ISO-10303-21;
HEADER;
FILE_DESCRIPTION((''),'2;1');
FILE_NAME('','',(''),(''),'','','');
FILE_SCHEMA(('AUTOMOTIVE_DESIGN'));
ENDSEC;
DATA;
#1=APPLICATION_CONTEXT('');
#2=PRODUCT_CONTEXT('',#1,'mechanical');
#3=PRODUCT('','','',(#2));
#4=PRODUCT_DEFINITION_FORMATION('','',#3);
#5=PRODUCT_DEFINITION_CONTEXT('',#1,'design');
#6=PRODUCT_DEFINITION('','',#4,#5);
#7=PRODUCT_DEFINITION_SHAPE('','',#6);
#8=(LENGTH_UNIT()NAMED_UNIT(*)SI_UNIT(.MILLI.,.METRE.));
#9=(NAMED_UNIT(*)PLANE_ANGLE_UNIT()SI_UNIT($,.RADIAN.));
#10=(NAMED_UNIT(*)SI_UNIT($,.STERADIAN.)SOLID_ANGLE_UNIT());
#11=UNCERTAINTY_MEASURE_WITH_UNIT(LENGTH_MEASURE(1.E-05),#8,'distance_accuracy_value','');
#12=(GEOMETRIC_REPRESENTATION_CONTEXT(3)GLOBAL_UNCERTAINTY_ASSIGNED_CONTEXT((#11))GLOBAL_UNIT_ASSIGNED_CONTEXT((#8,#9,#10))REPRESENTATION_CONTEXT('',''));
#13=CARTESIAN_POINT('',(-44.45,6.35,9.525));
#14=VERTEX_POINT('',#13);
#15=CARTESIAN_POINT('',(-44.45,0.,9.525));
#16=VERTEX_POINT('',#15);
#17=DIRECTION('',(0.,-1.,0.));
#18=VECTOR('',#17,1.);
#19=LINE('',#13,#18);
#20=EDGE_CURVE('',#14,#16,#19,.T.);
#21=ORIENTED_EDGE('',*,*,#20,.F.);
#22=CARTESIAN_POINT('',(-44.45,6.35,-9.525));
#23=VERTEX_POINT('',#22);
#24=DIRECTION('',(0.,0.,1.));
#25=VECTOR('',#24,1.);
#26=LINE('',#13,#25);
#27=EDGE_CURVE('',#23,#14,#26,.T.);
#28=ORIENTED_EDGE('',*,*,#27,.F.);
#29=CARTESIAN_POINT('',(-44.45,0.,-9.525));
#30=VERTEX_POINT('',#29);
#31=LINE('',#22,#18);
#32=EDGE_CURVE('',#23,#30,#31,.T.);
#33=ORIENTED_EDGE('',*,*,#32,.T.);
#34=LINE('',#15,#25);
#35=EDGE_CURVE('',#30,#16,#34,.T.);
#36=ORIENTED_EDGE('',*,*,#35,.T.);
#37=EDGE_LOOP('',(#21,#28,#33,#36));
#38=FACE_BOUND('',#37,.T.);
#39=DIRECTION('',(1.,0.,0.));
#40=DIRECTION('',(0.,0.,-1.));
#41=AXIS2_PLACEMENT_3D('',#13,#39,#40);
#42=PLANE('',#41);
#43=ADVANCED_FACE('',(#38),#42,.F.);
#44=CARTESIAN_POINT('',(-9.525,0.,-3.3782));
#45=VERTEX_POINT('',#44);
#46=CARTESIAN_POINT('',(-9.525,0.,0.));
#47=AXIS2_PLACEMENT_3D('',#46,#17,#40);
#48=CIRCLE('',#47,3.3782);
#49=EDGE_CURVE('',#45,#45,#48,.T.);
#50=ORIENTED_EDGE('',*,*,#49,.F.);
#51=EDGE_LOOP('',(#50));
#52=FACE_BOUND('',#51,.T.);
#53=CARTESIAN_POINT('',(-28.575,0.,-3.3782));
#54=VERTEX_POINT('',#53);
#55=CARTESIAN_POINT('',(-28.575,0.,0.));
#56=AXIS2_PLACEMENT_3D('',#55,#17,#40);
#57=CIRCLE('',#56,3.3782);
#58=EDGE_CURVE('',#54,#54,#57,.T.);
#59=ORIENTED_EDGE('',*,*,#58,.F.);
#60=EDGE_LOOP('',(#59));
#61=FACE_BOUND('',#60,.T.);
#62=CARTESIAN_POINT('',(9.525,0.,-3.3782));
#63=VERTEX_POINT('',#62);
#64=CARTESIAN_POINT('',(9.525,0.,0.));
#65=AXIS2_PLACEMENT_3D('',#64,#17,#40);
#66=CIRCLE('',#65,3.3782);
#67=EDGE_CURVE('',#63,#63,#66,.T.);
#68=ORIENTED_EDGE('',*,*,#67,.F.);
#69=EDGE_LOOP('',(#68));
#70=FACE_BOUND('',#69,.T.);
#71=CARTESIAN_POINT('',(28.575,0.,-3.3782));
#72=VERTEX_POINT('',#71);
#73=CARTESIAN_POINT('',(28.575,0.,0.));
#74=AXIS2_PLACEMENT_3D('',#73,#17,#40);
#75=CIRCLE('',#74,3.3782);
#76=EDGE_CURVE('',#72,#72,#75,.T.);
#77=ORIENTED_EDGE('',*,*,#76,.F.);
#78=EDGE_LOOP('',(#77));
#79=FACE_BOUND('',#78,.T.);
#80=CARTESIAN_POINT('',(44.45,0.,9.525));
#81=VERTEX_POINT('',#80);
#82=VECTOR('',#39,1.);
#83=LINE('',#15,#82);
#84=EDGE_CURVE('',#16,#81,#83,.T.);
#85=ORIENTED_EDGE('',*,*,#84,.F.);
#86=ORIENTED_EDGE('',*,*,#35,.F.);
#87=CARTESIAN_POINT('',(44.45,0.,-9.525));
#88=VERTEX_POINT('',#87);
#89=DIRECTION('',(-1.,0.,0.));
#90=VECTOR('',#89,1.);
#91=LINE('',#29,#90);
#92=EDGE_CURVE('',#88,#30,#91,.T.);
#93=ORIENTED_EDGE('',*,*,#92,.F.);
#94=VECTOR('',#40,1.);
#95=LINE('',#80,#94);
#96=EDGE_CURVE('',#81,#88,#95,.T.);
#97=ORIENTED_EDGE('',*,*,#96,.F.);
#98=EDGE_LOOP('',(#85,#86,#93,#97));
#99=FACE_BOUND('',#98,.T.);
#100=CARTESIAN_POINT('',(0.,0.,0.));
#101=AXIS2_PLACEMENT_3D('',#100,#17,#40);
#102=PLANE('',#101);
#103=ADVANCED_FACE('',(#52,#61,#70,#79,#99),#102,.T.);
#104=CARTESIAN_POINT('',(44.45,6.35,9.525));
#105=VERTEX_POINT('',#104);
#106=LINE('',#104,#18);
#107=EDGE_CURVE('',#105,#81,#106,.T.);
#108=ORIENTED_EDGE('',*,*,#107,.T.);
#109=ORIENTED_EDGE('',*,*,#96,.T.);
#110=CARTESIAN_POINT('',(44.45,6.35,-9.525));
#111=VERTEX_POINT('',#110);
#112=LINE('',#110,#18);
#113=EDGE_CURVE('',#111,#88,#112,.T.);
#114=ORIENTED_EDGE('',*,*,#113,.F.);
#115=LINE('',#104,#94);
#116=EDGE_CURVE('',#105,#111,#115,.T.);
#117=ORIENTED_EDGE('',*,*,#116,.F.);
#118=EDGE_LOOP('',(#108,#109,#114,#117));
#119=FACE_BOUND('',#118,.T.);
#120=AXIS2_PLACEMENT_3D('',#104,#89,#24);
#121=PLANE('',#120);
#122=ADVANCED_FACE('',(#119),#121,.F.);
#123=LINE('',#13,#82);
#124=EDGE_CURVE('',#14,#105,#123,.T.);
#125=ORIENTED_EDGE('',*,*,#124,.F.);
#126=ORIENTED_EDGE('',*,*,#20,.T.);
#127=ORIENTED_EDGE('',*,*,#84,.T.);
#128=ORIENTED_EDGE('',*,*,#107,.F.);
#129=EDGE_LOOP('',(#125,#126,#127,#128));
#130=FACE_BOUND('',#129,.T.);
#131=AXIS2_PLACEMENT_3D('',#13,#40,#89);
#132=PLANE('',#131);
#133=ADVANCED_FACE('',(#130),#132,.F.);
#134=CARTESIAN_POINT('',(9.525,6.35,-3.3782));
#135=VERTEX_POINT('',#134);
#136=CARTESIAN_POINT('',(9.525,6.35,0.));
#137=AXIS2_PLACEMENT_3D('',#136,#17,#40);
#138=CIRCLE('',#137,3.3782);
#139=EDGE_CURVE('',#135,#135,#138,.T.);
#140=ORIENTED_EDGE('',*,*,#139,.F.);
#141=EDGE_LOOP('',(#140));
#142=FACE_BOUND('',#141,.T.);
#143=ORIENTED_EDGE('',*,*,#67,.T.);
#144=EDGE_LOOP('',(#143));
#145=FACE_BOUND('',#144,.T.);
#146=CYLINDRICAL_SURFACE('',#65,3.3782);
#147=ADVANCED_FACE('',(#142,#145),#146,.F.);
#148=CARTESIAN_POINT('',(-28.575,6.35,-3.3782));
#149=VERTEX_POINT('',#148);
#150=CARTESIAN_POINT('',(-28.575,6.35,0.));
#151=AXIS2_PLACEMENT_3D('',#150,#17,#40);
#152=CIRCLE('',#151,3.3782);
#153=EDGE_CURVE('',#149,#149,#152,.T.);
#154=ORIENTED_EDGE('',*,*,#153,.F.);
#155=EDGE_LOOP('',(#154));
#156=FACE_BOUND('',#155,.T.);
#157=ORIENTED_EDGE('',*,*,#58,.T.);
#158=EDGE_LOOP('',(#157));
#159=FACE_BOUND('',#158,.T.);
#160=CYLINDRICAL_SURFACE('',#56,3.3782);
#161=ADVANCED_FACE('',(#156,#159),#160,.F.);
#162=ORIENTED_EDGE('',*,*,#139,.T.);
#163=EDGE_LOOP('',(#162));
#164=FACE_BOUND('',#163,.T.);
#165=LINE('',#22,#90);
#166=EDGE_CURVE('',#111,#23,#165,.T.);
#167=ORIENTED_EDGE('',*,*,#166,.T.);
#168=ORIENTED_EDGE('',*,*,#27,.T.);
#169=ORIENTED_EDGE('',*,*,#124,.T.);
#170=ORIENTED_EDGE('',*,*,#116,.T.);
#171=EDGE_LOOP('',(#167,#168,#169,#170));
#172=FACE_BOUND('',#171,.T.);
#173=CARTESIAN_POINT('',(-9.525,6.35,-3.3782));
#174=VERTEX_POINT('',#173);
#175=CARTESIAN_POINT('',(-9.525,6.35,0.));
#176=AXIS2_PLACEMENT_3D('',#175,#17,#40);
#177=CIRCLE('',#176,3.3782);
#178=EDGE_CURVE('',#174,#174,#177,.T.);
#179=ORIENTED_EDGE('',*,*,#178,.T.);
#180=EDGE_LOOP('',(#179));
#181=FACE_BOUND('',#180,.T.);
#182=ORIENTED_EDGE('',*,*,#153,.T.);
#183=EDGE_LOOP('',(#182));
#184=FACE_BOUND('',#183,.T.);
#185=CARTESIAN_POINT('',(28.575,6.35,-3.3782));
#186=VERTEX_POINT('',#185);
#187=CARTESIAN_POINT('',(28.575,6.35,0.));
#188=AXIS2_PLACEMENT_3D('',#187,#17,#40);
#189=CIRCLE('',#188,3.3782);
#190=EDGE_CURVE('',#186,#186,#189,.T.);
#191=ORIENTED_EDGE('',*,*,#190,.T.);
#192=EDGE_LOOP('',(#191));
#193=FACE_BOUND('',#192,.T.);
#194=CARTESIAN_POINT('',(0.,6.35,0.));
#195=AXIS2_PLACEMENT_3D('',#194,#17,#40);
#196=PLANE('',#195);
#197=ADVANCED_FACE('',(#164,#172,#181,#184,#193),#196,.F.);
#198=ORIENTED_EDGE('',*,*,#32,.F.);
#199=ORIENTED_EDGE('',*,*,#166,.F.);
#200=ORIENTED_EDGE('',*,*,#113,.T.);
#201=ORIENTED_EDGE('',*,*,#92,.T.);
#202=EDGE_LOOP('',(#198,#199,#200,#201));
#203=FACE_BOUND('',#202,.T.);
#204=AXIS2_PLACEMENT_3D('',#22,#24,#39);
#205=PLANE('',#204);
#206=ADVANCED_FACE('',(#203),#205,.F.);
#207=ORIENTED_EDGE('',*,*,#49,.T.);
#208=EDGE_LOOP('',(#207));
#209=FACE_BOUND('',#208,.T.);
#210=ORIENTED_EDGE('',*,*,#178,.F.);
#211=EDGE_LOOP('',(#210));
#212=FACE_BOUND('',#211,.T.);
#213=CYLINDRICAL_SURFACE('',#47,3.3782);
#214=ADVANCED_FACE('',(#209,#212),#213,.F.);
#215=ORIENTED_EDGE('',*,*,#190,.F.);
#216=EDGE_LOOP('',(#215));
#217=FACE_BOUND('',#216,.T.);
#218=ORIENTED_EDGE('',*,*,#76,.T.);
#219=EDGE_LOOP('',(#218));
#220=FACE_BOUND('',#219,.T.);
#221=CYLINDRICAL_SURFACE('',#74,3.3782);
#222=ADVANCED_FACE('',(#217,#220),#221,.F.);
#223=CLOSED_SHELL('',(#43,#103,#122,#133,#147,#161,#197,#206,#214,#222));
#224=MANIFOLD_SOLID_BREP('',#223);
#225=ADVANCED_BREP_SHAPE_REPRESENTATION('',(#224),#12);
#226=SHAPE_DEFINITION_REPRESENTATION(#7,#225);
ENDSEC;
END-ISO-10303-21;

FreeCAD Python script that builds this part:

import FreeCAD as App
import Part
import Sketcher
Q = App.Units.Quantity


def add_polygon(sketch, points):
    """Adds a closed chain of lines whose ends are joined by coincident constraints."""
    first, n = sketch.GeometryCount, len(points)
    for a, b in zip(points, points[1:] + points[:1]):
        sketch.addGeometry(Part.LineSegment(App.Vector(*a, 0), App.Vector(*b, 0)), False)
    for i in range(n):
        sketch.addConstraint(Sketcher.Constraint("Coincident", first + i, 2, first + (i + 1) % n, 1))

doc = App.newDocument("Part")
body = doc.addObject("PartDesign::Body", "Body")

sketch1 = body.newObject("Sketcher::SketchObject", "Sketch")
sketch1.AttachmentSupport = (doc.getObject("XZ_Plane"), [""])
sketch1.MapMode = "FlatFace"
add_polygon(sketch1, [(-44, -10), (-44, 10), (44, 10), (44, -10)])
sketch1.addConstraint([
    Sketcher.Constraint("Vertical", 0),
    Sketcher.Constraint("Horizontal", 1),
    Sketcher.Constraint("Vertical", 2),
    Sketcher.Constraint("Horizontal", 3),
    Sketcher.Constraint("Symmetric", 0, 2, 2, 2, -1, 1),
    Sketcher.Constraint("DistanceX", 1, 1, 1, 2, Q("3.5 in")),
    Sketcher.Constraint("DistanceY", 0, 1, 0, 2, Q("0.75 in")),
])
pad1 = body.newObject("PartDesign::Pad", "Pad")
pad1.Profile = sketch1
pad1.Length = Q("0.25 in")
pad1.Reversed = True

sketch2 = body.newObject("Sketcher::SketchObject", "Sketch001")
sketch2.AttachmentSupport = (doc.getObject("XZ_Plane"), [""])
sketch2.MapMode = "FlatFace"
sketch2.addGeometry([
    Part.Circle(App.Vector(28.6, 0, 0), App.Vector(0, 0, 1), 3.4),
    Part.Circle(App.Vector(-28.6, 0, 0), App.Vector(0, 0, 1), 3.4),
    Part.Circle(App.Vector(-9.5, 0, 0), App.Vector(0, 0, 1), 3.4),
    Part.Circle(App.Vector(9.5, 0, 0), App.Vector(0, 0, 1), 3.4),
], False)
sketch2.addConstraint([
    Sketcher.Constraint("Equal", 0, 1),
    Sketcher.Constraint("Equal", 1, 2),
    Sketcher.Constraint("Equal", 2, 3),
    Sketcher.Constraint("Symmetric", 0, 3, 1, 3, -1, 1),
    Sketcher.Constraint("Symmetric", 2, 3, 3, 3, -1, 1),
    Sketcher.Constraint("PointOnObject", 0, 3, -1),
    Sketcher.Constraint("PointOnObject", 2, 3, -1),
    Sketcher.Constraint("Diameter", 0, Q("0.266 in")),
    Sketcher.Constraint("DistanceX", 2, 3, 0, 3, Q("1.5 in")),
    Sketcher.Constraint("DistanceX", 1, 3, 0, 3, Q("2.25 in")),
])
doc.recompute()
hole = body.newObject("PartDesign::Hole", "Hole")
hole.Profile = sketch2
hole.ThreadType = "None"
hole.Diameter = Q("0.266 in")
hole.DepthType = "ThroughAll"

doc.recompute()
